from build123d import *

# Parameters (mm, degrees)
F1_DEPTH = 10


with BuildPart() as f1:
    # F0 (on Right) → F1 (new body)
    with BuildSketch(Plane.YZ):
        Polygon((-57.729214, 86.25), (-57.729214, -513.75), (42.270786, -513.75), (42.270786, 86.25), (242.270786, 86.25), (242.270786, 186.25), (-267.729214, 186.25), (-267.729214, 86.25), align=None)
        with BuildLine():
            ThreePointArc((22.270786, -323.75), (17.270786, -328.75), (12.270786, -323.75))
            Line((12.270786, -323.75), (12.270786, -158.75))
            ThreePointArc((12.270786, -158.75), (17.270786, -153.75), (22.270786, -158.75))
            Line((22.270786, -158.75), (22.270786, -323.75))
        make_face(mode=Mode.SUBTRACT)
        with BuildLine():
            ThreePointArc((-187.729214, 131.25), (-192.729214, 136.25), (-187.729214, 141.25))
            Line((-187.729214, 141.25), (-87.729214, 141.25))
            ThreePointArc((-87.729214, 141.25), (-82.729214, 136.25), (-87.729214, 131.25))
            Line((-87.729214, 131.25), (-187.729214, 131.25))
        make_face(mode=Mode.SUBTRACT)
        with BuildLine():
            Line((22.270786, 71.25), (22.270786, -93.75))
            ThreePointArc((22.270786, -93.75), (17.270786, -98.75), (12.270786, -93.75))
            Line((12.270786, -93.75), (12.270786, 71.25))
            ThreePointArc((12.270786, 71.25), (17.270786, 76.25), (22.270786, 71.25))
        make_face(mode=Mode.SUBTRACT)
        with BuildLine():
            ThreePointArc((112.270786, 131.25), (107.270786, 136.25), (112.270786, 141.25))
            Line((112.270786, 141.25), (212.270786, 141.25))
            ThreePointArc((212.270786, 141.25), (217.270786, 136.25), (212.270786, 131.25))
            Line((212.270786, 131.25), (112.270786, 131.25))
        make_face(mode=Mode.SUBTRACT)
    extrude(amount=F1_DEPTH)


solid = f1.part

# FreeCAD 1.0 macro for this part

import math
import FreeCAD as App
import Part
import Sketcher

V = App.Vector

doc = App.newDocument("Part")
body = doc.addObject("PartDesign::Body", "Body")

# Sketch on YZ plane
sketch1 = body.newObject("Sketcher::SketchObject", "Sketch")
sketch1.AttachmentSupport = (doc.getObject("YZ_Plane"), [""])
sketch1.MapMode = "FlatFace"
sketch1.addGeometry([
    Part.LineSegment(V(-58, 86, 0), V(-58, -514, 0)),  # 0
    Part.LineSegment(V(-58, -514, 0), V(42, -514, 0)),  # 1
    Part.LineSegment(V(42, -514, 0), V(42, 86, 0)),  # 2
    Part.LineSegment(V(42, 86, 0), V(242, 86, 0)),  # 3
    Part.LineSegment(V(242, 86, 0), V(242, 186, 0)),  # 4
    Part.LineSegment(V(242, 186, 0), V(-268, 186, 0)),  # 5
    Part.LineSegment(V(-268, 186, 0), V(-268, 86, 0)),  # 6
    Part.LineSegment(V(-268, 86, 0), V(-58, 86, 0)),  # 7
    Part.LineSegment(V(22, -159, 0), V(22, -324, 0)),  # 8
    Part.ArcOfCircle(Part.Circle(V(17, -324, 0), V(0, 0, 1), 5), math.radians(180), math.radians(360)),  # 9
    Part.LineSegment(V(12, -324, 0), V(12, -159, 0)),  # 10
    Part.ArcOfCircle(Part.Circle(V(17, -159, 0), V(0, 0, 1), 5), math.radians(0), math.radians(180)),  # 11
    Part.LineSegment(V(-88, 131, 0), V(-188, 131, 0)),  # 12
    Part.ArcOfCircle(Part.Circle(V(-188, 136, 0), V(0, 0, 1), 5), math.radians(90), math.radians(270)),  # 13
    Part.LineSegment(V(-188, 141, 0), V(-88, 141, 0)),  # 14
    Part.ArcOfCircle(Part.Circle(V(-88, 136, 0), V(0, 0, 1), 5), math.radians(-90), math.radians(90)),  # 15
    Part.ArcOfCircle(Part.Circle(V(17, 71, 0), V(0, 0, 1), 5), math.radians(0), math.radians(180)),  # 16
    Part.LineSegment(V(22, 71, 0), V(22, -94, 0)),  # 17
    Part.ArcOfCircle(Part.Circle(V(17, -94, 0), V(0, 0, 1), 5), math.radians(180), math.radians(360)),  # 18
    Part.LineSegment(V(12, -94, 0), V(12, 71, 0)),  # 19
    Part.LineSegment(V(212, 131, 0), V(112, 131, 0)),  # 20
    Part.ArcOfCircle(Part.Circle(V(112, 136, 0), V(0, 0, 1), 5), math.radians(90), math.radians(270)),  # 21
    Part.LineSegment(V(112, 141, 0), V(212, 141, 0)),  # 22
    Part.ArcOfCircle(Part.Circle(V(212, 136, 0), V(0, 0, 1), 5), math.radians(-90), math.radians(90)),  # 23
], False)
sketch1.addConstraint([
    Sketcher.Constraint("Coincident", 0, 2, 1, 1),
    Sketcher.Constraint("Coincident", 1, 2, 2, 1),
    Sketcher.Constraint("Coincident", 2, 2, 3, 1),
    Sketcher.Constraint("Coincident", 3, 2, 4, 1),
    Sketcher.Constraint("Coincident", 4, 2, 5, 1),
    Sketcher.Constraint("Coincident", 5, 2, 6, 1),
    Sketcher.Constraint("Coincident", 6, 2, 7, 1),
    Sketcher.Constraint("Coincident", 7, 2, 0, 1),
    Sketcher.Constraint("Tangent", 8, 2, 9, 2),
    Sketcher.Constraint("Tangent", 9, 1, 10, 1),
    Sketcher.Constraint("Tangent", 10, 2, 11, 2),
    Sketcher.Constraint("Tangent", 11, 1, 8, 1),
    Sketcher.Constraint("Tangent", 12, 2, 13, 2),
    Sketcher.Constraint("Tangent", 13, 1, 14, 1),
    Sketcher.Constraint("Tangent", 14, 2, 15, 2),
    Sketcher.Constraint("Tangent", 15, 1, 12, 1),
    Sketcher.Constraint("Tangent", 16, 1, 17, 1),
    Sketcher.Constraint("Tangent", 17, 2, 18, 2),
    Sketcher.Constraint("Tangent", 18, 1, 19, 1),
    Sketcher.Constraint("Tangent", 19, 2, 16, 2),
    Sketcher.Constraint("Tangent", 20, 2, 21, 2),
    Sketcher.Constraint("Tangent", 21, 1, 22, 1),
    Sketcher.Constraint("Tangent", 22, 2, 23, 2),
    Sketcher.Constraint("Tangent", 23, 1, 20, 1),
    Sketcher.Constraint("Vertical", 0),
    Sketcher.Constraint("Horizontal", 1),
    Sketcher.Constraint("Vertical", 2),
    Sketcher.Constraint("Horizontal", 3),
    Sketcher.Constraint("Vertical", 4),
    Sketcher.Constraint("Horizontal", 5),
    Sketcher.Constraint("Vertical", 6),
    Sketcher.Constraint("Horizontal", 7),
    Sketcher.Constraint("Vertical", 8),
    Sketcher.Constraint("Vertical", 10),
    Sketcher.Constraint("Horizontal", 12),
    Sketcher.Constraint("Horizontal", 14),
    Sketcher.Constraint("Vertical", 17),
    Sketcher.Constraint("Vertical", 19),
    Sketcher.Constraint("Horizontal", 20),
    Sketcher.Constraint("Horizontal", 22),
    Sketcher.Constraint("Equal", 11, 13),
    Sketcher.Constraint("Equal", 15, 16),
    Sketcher.Constraint("Equal", 18, 21),
    Sketcher.Constraint("Horizontal", 15, 3, 21, 3),
    Sketcher.Constraint("Horizontal", 3, 2, 6, 2),
    Sketcher.Constraint("Vertical", 11, 3, 16, 3),
    Sketcher.Constraint("Equal", 1, 12),
    Sketcher.Constraint("Equal", 14, 20),
    Sketcher.Constraint("Equal", 22, 4),
    Sketcher.Constraint("Equal", 10, 17),
    Sketcher.Constraint("Radius", 9, 5.0),
    Sketcher.Constraint("DistanceX", 1, 1, 1, 2, 100.0),
    Sketcher.Constraint("DistanceX", 3, 1, 3, 2, 200.0),
    Sketcher.Constraint("DistanceX", 5, 2, 5, 1, 510.0),
    Sketcher.Constraint("DistanceY", 0, 2, 0, 1, 600.0),
    Sketcher.Constraint("DistanceY", 8, 2, 8, 1, 165.0),
    Sketcher.Constraint("DistanceX", 13, 3, 11, 3, 205.0),
    Sketcher.Constraint("DistanceY", 11, 3, 13, 3, 295.0),
    Sketcher.Constraint("DistanceY", 16, 3, 15, 3, 65.0),
    Sketcher.Constraint("DistanceX", 16, 3, 21, 3, 95.0),
    Sketcher.Constraint("DistanceX", 0, 2, 9, 3, 75.0),
    Sketcher.Constraint("DistanceY", 0, 2, 9, 3, 190.0),
    Sketcher.Constraint("DistanceY", 9, 3, -1, 1, 323.75),
    Sketcher.Constraint("DistanceX", -1, 1, 9, 3, 17.270786),
])
pad1 = body.newObject("PartDesign::Pad", "Pad")
pad1.Profile = sketch1
pad1.Length = 10

doc.recompute()
